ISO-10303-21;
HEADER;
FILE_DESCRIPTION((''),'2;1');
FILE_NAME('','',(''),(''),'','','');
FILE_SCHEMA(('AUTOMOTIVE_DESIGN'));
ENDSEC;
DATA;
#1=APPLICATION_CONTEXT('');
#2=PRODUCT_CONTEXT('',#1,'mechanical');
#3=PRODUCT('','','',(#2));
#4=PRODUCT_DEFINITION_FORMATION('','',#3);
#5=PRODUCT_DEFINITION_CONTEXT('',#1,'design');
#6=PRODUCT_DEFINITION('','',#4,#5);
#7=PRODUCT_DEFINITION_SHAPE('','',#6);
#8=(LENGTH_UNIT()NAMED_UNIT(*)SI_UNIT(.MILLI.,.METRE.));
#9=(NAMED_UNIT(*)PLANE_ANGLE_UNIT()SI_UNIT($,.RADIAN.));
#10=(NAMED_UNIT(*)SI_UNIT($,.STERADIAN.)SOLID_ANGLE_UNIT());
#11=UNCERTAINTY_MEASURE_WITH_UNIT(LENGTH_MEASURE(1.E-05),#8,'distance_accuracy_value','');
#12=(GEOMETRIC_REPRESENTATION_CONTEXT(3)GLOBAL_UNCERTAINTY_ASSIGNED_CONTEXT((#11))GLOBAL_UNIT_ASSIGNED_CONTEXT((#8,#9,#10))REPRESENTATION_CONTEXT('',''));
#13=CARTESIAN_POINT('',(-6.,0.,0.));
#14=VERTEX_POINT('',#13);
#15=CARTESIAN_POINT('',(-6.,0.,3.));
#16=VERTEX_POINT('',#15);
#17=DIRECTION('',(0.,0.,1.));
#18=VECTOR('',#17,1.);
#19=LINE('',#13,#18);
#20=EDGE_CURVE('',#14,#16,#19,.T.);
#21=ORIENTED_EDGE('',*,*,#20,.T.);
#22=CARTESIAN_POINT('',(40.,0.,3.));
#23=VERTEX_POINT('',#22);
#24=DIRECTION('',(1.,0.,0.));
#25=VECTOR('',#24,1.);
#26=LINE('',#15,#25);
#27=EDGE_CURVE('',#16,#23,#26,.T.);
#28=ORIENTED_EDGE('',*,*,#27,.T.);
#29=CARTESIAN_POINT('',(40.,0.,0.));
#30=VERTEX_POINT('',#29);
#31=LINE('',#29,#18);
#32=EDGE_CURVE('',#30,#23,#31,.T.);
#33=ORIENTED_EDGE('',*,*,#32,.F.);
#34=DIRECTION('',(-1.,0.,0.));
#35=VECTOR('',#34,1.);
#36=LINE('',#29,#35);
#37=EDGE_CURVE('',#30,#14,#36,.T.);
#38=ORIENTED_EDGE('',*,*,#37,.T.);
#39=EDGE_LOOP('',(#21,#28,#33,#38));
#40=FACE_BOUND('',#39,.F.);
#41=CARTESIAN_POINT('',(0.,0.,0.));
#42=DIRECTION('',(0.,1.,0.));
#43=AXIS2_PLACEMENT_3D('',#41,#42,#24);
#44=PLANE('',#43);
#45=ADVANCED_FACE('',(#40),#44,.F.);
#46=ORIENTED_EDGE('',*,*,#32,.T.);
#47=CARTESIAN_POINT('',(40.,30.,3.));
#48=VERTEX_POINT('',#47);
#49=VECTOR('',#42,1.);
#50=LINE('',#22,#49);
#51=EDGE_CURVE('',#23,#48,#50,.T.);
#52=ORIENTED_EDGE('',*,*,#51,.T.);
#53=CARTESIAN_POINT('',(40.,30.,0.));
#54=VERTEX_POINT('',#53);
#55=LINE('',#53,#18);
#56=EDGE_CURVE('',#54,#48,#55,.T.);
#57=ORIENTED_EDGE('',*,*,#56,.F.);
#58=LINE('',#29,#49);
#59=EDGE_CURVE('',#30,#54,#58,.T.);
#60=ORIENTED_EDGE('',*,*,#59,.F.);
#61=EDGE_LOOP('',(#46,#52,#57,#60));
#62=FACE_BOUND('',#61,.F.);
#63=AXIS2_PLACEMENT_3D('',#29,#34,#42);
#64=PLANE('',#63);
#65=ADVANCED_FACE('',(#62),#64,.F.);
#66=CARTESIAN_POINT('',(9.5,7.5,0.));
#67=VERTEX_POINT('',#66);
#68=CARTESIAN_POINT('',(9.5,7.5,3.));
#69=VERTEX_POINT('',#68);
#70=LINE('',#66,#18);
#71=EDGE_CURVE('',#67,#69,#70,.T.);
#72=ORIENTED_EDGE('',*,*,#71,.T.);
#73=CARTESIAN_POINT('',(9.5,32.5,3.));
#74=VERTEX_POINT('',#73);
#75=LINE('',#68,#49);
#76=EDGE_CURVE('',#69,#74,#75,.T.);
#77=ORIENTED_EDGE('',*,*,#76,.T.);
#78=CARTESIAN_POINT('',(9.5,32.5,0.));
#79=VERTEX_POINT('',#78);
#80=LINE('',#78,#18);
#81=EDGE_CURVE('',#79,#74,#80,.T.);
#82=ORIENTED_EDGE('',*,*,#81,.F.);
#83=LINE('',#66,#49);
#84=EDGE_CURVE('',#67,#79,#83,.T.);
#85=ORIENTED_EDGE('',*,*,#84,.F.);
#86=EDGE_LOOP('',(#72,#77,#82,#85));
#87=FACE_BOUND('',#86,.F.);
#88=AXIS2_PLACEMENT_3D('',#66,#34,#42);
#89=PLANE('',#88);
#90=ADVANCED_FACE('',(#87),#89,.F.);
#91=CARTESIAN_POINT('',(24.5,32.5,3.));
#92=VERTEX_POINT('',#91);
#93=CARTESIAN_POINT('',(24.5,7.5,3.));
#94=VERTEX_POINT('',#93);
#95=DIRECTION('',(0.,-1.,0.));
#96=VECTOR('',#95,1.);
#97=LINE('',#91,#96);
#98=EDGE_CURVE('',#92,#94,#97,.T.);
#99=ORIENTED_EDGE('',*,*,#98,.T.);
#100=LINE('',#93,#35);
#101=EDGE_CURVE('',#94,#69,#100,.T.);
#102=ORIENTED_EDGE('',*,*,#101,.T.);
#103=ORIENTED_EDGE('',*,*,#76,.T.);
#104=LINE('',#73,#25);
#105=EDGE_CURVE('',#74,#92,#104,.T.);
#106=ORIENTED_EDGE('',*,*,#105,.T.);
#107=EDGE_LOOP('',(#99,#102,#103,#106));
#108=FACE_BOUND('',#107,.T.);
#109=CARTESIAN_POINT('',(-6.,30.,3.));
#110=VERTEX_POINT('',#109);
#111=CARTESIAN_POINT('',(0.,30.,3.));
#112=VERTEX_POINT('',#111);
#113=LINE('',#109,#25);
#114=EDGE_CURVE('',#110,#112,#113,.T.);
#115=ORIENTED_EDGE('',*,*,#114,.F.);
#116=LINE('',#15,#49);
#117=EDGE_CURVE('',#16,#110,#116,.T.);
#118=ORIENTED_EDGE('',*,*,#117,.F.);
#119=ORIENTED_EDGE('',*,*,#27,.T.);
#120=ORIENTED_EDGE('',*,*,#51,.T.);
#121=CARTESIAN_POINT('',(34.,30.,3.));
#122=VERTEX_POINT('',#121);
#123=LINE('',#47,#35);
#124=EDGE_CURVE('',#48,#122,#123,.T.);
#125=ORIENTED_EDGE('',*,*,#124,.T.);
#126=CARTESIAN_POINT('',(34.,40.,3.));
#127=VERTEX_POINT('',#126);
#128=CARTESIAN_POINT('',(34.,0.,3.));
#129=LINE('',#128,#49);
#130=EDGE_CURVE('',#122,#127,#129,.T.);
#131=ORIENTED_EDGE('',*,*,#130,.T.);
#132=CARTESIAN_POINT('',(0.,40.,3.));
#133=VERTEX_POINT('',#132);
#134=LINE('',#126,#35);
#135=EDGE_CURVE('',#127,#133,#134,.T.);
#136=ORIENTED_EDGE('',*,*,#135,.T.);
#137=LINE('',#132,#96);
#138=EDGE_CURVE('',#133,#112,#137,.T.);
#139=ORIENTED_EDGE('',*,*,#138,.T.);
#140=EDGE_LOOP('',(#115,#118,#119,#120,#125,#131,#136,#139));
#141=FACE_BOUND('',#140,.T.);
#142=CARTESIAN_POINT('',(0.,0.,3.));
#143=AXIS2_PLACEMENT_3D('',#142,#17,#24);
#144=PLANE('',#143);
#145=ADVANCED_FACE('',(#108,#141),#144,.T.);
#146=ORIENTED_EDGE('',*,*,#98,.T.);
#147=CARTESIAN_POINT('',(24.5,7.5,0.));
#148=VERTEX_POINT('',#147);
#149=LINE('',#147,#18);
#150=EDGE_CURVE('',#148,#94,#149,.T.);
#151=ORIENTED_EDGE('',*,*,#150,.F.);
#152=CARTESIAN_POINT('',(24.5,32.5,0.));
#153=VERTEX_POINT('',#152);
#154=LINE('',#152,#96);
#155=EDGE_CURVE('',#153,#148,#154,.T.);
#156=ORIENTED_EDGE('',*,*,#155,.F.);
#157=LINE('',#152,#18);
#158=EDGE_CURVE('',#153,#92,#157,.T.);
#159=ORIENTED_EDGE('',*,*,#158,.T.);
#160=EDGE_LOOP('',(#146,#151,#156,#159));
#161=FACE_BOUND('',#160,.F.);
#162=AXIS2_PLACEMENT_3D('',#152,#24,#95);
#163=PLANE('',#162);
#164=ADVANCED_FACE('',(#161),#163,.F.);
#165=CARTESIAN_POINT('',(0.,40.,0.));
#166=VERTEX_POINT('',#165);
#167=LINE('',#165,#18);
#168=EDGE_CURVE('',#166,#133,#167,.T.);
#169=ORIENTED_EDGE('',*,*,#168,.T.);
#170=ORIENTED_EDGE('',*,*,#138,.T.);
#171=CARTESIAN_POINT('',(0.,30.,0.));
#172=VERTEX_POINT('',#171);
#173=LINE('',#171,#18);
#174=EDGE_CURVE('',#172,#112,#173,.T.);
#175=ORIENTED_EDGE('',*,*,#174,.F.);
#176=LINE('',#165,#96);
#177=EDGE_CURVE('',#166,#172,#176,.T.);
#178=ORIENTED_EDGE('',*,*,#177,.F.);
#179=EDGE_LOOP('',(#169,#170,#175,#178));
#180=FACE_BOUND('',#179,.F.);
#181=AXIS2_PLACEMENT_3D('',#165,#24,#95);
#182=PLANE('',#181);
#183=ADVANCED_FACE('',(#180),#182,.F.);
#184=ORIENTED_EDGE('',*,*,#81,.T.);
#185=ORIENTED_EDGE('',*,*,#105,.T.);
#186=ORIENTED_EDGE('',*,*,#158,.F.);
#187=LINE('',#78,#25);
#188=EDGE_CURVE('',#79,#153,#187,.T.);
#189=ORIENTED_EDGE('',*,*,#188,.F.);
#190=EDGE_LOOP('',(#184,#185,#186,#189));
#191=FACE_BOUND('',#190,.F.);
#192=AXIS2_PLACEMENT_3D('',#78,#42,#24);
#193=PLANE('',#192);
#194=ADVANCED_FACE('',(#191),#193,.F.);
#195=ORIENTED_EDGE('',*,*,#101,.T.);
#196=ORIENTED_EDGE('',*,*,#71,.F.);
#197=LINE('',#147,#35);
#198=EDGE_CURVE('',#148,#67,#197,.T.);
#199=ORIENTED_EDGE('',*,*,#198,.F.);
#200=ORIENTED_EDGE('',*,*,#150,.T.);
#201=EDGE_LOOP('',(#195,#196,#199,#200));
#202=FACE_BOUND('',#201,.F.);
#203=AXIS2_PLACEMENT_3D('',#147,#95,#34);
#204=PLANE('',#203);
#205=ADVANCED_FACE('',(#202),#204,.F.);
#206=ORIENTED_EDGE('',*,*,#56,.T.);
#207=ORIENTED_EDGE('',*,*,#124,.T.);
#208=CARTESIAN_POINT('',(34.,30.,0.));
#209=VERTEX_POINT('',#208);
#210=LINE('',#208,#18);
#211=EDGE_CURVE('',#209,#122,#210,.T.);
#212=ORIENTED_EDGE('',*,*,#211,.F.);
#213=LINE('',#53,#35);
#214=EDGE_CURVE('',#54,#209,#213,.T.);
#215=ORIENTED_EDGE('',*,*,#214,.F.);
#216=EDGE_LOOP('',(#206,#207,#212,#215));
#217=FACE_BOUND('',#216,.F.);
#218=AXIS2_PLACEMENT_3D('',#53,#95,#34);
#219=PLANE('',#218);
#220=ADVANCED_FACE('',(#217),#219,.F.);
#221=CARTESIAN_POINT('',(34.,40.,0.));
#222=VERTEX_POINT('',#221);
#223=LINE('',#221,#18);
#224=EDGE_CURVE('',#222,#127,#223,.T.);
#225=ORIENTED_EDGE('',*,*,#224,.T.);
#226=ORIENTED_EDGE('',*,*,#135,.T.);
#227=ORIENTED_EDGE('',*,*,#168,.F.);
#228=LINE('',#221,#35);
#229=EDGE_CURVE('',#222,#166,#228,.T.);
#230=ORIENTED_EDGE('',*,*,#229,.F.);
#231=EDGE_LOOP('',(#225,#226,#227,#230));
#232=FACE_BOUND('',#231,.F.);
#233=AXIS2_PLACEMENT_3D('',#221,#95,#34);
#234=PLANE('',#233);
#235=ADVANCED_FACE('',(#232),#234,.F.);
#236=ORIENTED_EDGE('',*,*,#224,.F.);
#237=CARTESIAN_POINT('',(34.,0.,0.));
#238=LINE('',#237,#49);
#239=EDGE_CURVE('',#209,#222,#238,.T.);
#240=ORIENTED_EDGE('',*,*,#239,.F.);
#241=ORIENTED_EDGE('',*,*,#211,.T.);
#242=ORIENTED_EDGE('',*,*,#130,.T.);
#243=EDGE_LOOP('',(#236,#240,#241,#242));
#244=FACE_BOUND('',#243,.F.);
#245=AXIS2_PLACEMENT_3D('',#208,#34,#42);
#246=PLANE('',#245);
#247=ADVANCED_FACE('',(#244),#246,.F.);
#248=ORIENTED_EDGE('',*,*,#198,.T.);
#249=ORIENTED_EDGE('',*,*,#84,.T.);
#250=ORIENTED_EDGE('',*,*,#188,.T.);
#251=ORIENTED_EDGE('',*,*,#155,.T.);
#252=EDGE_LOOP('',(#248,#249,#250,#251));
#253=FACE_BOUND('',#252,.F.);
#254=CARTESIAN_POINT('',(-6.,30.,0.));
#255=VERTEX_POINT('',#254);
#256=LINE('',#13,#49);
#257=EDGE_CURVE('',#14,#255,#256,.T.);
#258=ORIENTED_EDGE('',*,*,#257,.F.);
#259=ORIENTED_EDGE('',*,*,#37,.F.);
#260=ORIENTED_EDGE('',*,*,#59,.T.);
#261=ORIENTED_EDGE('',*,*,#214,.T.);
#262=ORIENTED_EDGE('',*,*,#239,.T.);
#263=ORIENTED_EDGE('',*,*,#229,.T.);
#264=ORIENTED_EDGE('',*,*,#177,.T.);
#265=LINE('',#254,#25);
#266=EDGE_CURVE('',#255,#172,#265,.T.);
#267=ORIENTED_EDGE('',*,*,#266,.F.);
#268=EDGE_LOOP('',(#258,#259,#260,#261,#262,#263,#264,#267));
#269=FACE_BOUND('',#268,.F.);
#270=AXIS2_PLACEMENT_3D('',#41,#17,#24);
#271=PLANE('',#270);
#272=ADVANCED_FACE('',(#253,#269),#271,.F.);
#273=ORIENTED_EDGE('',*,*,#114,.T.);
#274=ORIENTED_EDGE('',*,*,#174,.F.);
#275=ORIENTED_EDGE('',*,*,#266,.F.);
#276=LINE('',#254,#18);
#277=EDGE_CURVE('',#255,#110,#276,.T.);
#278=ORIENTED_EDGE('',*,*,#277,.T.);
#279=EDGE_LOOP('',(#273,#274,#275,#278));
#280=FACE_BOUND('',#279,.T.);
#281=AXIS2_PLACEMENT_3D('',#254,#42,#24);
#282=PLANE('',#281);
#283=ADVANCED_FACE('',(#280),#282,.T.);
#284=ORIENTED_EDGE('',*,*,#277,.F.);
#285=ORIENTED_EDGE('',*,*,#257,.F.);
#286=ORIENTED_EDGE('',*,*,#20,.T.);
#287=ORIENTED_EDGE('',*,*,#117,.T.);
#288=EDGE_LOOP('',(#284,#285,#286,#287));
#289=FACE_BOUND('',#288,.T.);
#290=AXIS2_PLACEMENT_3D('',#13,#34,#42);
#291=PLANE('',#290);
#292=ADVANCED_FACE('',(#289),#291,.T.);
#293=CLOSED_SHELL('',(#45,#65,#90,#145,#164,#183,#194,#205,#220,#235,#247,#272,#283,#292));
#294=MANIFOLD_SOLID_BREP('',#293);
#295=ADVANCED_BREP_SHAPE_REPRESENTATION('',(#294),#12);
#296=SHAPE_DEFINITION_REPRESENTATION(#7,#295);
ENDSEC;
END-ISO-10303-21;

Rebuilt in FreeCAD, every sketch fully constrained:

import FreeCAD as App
import Part
import Sketcher
from FreeCAD import Vector


def add_polygon(sketch, points):
    """Adds a closed chain of lines whose ends are joined by coincident constraints."""
    first, n = sketch.GeometryCount, len(points)
    for a, b in zip(points, points[1:] + points[:1]):
        sketch.addGeometry(Part.LineSegment(App.Vector(*a, 0), App.Vector(*b, 0)), False)
    for i in range(n):
        sketch.addConstraint(Sketcher.Constraint("Coincident", first + i, 2, first + (i + 1) % n, 1))

doc = App.newDocument("Part")
body = doc.addObject("PartDesign::Body", "Body")

# Sketch on XY plane
sketch1 = body.newObject("Sketcher::SketchObject", "Sketch")
sketch1.AttachmentSupport = (doc.getObject("XY_Plane"), [""])
sketch1.MapMode = "FlatFace"
add_polygon(sketch1, [(0, 40), (0, 30), (-6, 30), (-6, 0), (40, 0), (40, 30), (34, 30), (34, 40)])  # lines 0-7
add_polygon(sketch1, [(10, 8), (10, 32), (24, 32), (24, 8)])  # lines 8-11
sketch1.addConstraint(Sketcher.Constraint("Vertical", 0))
sketch1.addConstraint(Sketcher.Constraint("Horizontal", 1))
sketch1.addConstraint(Sketcher.Constraint("Vertical", 2))
sketch1.addConstraint(Sketcher.Constraint("Horizontal", 3))
sketch1.addConstraint(Sketcher.Constraint("Vertical", 4))
sketch1.addConstraint(Sketcher.Constraint("Horizontal", 5))
sketch1.addConstraint(Sketcher.Constraint("Vertical", 6))
sketch1.addConstraint(Sketcher.Constraint("Horizontal", 7))
sketch1.addConstraint(Sketcher.Constraint("Vertical", 8))
sketch1.addConstraint(Sketcher.Constraint("Horizontal", 9))
sketch1.addConstraint(Sketcher.Constraint("Vertical", 10))
sketch1.addConstraint(Sketcher.Constraint("Horizontal", 11))
sketch1.addConstraint(Sketcher.Constraint("PointOnObject", 0, 2, -2))
sketch1.addConstraint(Sketcher.Constraint("PointOnObject", 2, 2, -1))
sketch1.addConstraint(Sketcher.Constraint("Horizontal", 1, 2, 4, 2))
sketch1.addConstraint(Sketcher.Constraint("Equal", 1, 5))
sketch1.addConstraint(Sketcher.Constraint("DistanceX", 1, 2, 1, 1, 6.0))
sketch1.addConstraint(Sketcher.Constraint("DistanceX", 7, 2, 7, 1, 34.0))
sketch1.addConstraint(Sketcher.Constraint("DistanceX", 9, 1, 9, 2, 15.0))
sketch1.addConstraint(Sketcher.Constraint("DistanceY", 2, 2, 2, 1, 30.0))
sketch1.addConstraint(Sketcher.Constraint("DistanceY", 8, 1, 8, 2, 25.0))
sketch1.addConstraint(Sketcher.Constraint("DistanceY", -1, 1, 6, 2, 40.0))
sketch1.addConstraint(Sketcher.Constraint("DistanceX", -1, 1, 8, 2, 9.5))
sketch1.addConstraint(Sketcher.Constraint("DistanceY", -1, 1, 8, 2, 32.5))
pad1 = body.newObject("PartDesign::Pad", "Pad")
pad1.Profile = sketch1
pad1.Length = 3

doc.recompute()
